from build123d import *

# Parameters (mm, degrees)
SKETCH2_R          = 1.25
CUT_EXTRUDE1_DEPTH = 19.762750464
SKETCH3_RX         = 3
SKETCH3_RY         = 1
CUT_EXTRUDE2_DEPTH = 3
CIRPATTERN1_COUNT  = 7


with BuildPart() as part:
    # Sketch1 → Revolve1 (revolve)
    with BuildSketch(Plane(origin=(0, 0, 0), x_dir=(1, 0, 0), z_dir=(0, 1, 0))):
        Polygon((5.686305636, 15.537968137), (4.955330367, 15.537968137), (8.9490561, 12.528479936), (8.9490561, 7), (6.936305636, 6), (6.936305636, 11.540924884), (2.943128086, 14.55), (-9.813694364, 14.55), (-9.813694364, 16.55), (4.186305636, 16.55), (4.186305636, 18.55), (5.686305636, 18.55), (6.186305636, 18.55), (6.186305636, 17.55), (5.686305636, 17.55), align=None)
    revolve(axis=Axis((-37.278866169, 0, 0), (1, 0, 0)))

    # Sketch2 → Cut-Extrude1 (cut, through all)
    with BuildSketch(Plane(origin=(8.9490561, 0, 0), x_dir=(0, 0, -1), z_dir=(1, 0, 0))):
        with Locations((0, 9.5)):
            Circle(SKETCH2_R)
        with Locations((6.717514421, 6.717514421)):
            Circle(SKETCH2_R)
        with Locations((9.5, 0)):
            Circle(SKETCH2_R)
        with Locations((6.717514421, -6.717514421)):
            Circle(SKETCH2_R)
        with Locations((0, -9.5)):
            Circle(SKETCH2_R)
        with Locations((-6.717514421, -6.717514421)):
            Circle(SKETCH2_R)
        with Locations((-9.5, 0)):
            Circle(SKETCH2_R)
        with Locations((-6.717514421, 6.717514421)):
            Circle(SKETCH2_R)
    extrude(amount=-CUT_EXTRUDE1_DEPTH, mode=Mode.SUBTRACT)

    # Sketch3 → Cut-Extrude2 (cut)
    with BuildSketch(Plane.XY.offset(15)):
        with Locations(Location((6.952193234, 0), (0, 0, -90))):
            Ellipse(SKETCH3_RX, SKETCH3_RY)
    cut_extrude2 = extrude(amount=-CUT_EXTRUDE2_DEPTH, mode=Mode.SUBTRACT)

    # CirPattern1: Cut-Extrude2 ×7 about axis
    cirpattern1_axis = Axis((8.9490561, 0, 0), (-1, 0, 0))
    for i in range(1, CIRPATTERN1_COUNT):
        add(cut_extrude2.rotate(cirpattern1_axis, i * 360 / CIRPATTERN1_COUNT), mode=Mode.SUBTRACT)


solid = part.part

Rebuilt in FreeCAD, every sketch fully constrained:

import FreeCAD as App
import Part
import Sketcher

V = App.Vector
Q = App.Units.Quantity

doc = App.newDocument("Part")
body = doc.addObject("PartDesign::Body", "Body")

# Sketch on XZ plane
sketch1 = body.newObject("Sketcher::SketchObject", "Sketch")
sketch1.AttachmentSupport = (doc.getObject("XZ_Plane"), [""])
sketch1.MapMode = "FlatFace"
sketch1.addGeometry([
    Part.LineSegment(V(4.95533, -15.537968, 0), V(5.686306, -15.537968, 0)),  # 0
    Part.LineSegment(V(5.686306, -15.537968, 0), V(5.686306, -17.55, 0)),  # 1
    Part.LineSegment(V(5.686306, -17.55, 0), V(6.186306, -17.55, 0)),  # 2
    Part.LineSegment(V(6.186306, -17.55, 0), V(6.186306, -18.55, 0)),  # 3
    Part.LineSegment(V(6.186306, -18.55, 0), V(4.186306, -18.55, 0)),  # 4
    Part.LineSegment(V(4.186306, -18.55, 0), V(4.186306, -16.55, 0)),  # 5
    Part.LineSegment(V(4.186306, -16.55, 0), V(-9.813694, -16.55, 0)),  # 6
    Part.LineSegment(V(-9.813694, -16.55, 0), V(-9.813694, -14.55, 0)),  # 7
    Part.LineSegment(V(-9.813694, -14.55, 0), V(2.943128, -14.55, 0)),  # 8
    Part.LineSegment(V(2.943128, -14.55, 0), V(6.936306, -11.540925, 0)),  # 9
    Part.LineSegment(V(6.936306, -11.540925, 0), V(6.936306, -6, 0)),  # 10
    Part.LineSegment(V(6.936306, -6, 0), V(8.949056, -7, 0)),  # 11
    Part.LineSegment(V(8.949056, -7, 0), V(8.949056, -12.52848, 0)),  # 12
    Part.LineSegment(V(8.949056, -12.52848, 0), V(4.95533, -15.537968, 0)),  # 13
], False)
sketch1.addConstraint([
    Sketcher.Constraint("Coincident", 0, 2, 1, 1),
    Sketcher.Constraint("Coincident", 1, 2, 2, 1),
    Sketcher.Constraint("Coincident", 2, 2, 3, 1),
    Sketcher.Constraint("Coincident", 3, 2, 4, 1),
    Sketcher.Constraint("Coincident", 4, 2, 5, 1),
    Sketcher.Constraint("Coincident", 5, 2, 6, 1),
    Sketcher.Constraint("Coincident", 6, 2, 7, 1),
    Sketcher.Constraint("Coincident", 7, 2, 8, 1),
    Sketcher.Constraint("Coincident", 8, 2, 9, 1),
    Sketcher.Constraint("Coincident", 9, 2, 10, 1),
    Sketcher.Constraint("Coincident", 10, 2, 11, 1),
    Sketcher.Constraint("Coincident", 11, 2, 12, 1),
    Sketcher.Constraint("Coincident", 12, 2, 13, 1),
    Sketcher.Constraint("Coincident", 13, 2, 0, 1),
    Sketcher.Constraint("Horizontal", 0),
    Sketcher.Constraint("Vertical", 1),
    Sketcher.Constraint("Horizontal", 2),
    Sketcher.Constraint("Vertical", 3),
    Sketcher.Constraint("Horizontal", 4),
    Sketcher.Constraint("Vertical", 5),
    Sketcher.Constraint("Horizontal", 6),
    Sketcher.Constraint("Vertical", 7),
    Sketcher.Constraint("Horizontal", 8),
    Sketcher.Constraint("Vertical", 10),
    Sketcher.Constraint("Vertical", 12),
    Sketcher.Constraint("Parallel", 9, 13),
    Sketcher.Constraint("Equal", 4, 5),
    Sketcher.Constraint("Equal", 5, 7),
    Sketcher.Constraint("DistanceX", 4, 2, 4, 1, Q("2 mm")),
    Sketcher.Constraint("DistanceX", 6, 2, 6, 1, Q("14 mm")),
    Sketcher.Constraint("DistanceY", 3, 2, 3, 1, Q("1 mm")),
    Sketcher.Constraint("Angle", 9, Q("37 deg")),
    Sketcher.Constraint("Distance", 9, Q("5 mm")),
    Sketcher.Constraint("DistanceX", 2, 1, 2, 2, Q("0.5 mm")),
    Sketcher.Constraint("DistanceY", 10, 2, -1, 1, Q("6 mm")),
    Sketcher.Constraint("DistanceY", 11, 2, -1, 1, Q("7 mm")),
    Sketcher.Constraint("DistanceY", 1, 2, -1, 1, Q("17.55 mm")),
    Sketcher.Constraint("DistanceX", 0, 2, 9, 2, Q("1.25 mm")),
    Sketcher.Constraint("DistanceY", 1, 2, 1, 1, Q("2.012032 mm")),
    Sketcher.Constraint("DistanceY", 12, 2, 12, 1, Q("5.52848 mm")),
    Sketcher.Constraint("Distance", 11, Q("2.24748 mm")),
    Sketcher.Constraint("DistanceX", -1, 1, 8, 2, Q("2.943128 mm")),
])
revolution = body.newObject("PartDesign::Revolution", "Revolution")
revolution.Profile = sketch1
revolution.ReferenceAxis = (sketch1, ["H_Axis"])
revolution.Angle = 360

# Sketch on YZ plane
sketch2 = body.newObject("Sketcher::SketchObject", "Sketch001")
sketch2.AttachmentSupport = (doc.getObject("YZ_Plane"), [""])
sketch2.MapMode = "FlatFace"
sketch2.AttachmentOffset = App.Placement(V(0, 0, 8.949056), App.Rotation())
sketch2.addGeometry([
    Part.Circle(V(9.5, 0, 0), V(0, 0, 1), 1.25),  # 0
    Part.Circle(V(6.717514, -6.717514, 0), V(0, 0, 1), 1.25),  # 1
    Part.Circle(V(0, -9.5, 0), V(0, 0, 1), 1.25),  # 2
    Part.Circle(V(-6.717514, -6.717514, 0), V(0, 0, 1), 1.25),  # 3
    Part.Circle(V(-9.5, 0, 0), V(0, 0, 1), 1.25),  # 4
    Part.Circle(V(-6.717514, 6.717514, 0), V(0, 0, 1), 1.25),  # 5
    Part.Circle(V(0, 9.5, 0), V(0, 0, 1), 1.25),  # 6
    Part.Circle(V(6.717514, 6.717514, 0), V(0, 0, 1), 1.25),  # 7
], False)
sketch2.addConstraint([
    Sketcher.Constraint("Equal", 0, 1),
    Sketcher.Constraint("Equal", 1, 2),
    Sketcher.Constraint("Equal", 2, 3),
    Sketcher.Constraint("Equal", 3, 4),
    Sketcher.Constraint("Equal", 4, 5),
    Sketcher.Constraint("Equal", 5, 6),
    Sketcher.Constraint("Equal", 6, 7),
    Sketcher.Constraint("Symmetric", 0, 3, 4, 3, -1, 1),
    Sketcher.Constraint("Symmetric", 1, 3, 5, 3, -1, 1),
    Sketcher.Constraint("Symmetric", 2, 3, 6, 3, -1, 1),
    Sketcher.Constraint("Symmetric", 3, 3, 7, 3, -1, 1),
    Sketcher.Constraint("Symmetric", 1, 3, 3, 3, -2),
    Sketcher.Constraint("PointOnObject", 0, 3, -1),
    Sketcher.Constraint("PointOnObject", 2, 3, -2),
    Sketcher.Constraint("Diameter", 0, Q("2.5 mm")),
    Sketcher.Constraint("DistanceX", 4, 3, 0, 3, Q("19 mm")),
    Sketcher.Constraint("DistanceY", 2, 3, -1, 1, Q("9.5 mm")),
    Sketcher.Constraint("DistanceX", 3, 3, 1, 3, Q("13.435029 mm")),
    Sketcher.Constraint("DistanceY", 3, 3, 5, 3, Q("13.435029 mm")),
])
pocket1 = body.newObject("PartDesign::Pocket", "Pocket")
pocket1.Profile = sketch2
pocket1.Type = "ThroughAll"

# Sketch on XY plane
sketch3 = body.newObject("Sketcher::SketchObject", "Sketch002")
sketch3.AttachmentSupport = (doc.getObject("XY_Plane"), [""])
sketch3.MapMode = "FlatFace"
sketch3.AttachmentOffset = App.Placement(V(0, 0, 15), App.Rotation())
sketch3.addGeometry(Part.Ellipse(V(6.952193, -3, 0), V(7.952193, 0, 0), V(6.952193, 0, 0)), False)
sketch3.addConstraint(Sketcher.Constraint("Block", 0))
pocket2 = body.newObject("PartDesign::Pocket", "Pocket001")
pocket2.Profile = sketch3
pocket2.Length = 3
doc.recompute()

polarpattern = body.newObject("PartDesign::PolarPattern", "PolarPattern")
polarpattern.Originals = [pocket2]
polarpattern.Axis = (doc.getObject("X_Axis"), [""])
polarpattern.Angle = 360
polarpattern.Occurrences = 7
body.Tip = polarpattern

doc.recompute()
